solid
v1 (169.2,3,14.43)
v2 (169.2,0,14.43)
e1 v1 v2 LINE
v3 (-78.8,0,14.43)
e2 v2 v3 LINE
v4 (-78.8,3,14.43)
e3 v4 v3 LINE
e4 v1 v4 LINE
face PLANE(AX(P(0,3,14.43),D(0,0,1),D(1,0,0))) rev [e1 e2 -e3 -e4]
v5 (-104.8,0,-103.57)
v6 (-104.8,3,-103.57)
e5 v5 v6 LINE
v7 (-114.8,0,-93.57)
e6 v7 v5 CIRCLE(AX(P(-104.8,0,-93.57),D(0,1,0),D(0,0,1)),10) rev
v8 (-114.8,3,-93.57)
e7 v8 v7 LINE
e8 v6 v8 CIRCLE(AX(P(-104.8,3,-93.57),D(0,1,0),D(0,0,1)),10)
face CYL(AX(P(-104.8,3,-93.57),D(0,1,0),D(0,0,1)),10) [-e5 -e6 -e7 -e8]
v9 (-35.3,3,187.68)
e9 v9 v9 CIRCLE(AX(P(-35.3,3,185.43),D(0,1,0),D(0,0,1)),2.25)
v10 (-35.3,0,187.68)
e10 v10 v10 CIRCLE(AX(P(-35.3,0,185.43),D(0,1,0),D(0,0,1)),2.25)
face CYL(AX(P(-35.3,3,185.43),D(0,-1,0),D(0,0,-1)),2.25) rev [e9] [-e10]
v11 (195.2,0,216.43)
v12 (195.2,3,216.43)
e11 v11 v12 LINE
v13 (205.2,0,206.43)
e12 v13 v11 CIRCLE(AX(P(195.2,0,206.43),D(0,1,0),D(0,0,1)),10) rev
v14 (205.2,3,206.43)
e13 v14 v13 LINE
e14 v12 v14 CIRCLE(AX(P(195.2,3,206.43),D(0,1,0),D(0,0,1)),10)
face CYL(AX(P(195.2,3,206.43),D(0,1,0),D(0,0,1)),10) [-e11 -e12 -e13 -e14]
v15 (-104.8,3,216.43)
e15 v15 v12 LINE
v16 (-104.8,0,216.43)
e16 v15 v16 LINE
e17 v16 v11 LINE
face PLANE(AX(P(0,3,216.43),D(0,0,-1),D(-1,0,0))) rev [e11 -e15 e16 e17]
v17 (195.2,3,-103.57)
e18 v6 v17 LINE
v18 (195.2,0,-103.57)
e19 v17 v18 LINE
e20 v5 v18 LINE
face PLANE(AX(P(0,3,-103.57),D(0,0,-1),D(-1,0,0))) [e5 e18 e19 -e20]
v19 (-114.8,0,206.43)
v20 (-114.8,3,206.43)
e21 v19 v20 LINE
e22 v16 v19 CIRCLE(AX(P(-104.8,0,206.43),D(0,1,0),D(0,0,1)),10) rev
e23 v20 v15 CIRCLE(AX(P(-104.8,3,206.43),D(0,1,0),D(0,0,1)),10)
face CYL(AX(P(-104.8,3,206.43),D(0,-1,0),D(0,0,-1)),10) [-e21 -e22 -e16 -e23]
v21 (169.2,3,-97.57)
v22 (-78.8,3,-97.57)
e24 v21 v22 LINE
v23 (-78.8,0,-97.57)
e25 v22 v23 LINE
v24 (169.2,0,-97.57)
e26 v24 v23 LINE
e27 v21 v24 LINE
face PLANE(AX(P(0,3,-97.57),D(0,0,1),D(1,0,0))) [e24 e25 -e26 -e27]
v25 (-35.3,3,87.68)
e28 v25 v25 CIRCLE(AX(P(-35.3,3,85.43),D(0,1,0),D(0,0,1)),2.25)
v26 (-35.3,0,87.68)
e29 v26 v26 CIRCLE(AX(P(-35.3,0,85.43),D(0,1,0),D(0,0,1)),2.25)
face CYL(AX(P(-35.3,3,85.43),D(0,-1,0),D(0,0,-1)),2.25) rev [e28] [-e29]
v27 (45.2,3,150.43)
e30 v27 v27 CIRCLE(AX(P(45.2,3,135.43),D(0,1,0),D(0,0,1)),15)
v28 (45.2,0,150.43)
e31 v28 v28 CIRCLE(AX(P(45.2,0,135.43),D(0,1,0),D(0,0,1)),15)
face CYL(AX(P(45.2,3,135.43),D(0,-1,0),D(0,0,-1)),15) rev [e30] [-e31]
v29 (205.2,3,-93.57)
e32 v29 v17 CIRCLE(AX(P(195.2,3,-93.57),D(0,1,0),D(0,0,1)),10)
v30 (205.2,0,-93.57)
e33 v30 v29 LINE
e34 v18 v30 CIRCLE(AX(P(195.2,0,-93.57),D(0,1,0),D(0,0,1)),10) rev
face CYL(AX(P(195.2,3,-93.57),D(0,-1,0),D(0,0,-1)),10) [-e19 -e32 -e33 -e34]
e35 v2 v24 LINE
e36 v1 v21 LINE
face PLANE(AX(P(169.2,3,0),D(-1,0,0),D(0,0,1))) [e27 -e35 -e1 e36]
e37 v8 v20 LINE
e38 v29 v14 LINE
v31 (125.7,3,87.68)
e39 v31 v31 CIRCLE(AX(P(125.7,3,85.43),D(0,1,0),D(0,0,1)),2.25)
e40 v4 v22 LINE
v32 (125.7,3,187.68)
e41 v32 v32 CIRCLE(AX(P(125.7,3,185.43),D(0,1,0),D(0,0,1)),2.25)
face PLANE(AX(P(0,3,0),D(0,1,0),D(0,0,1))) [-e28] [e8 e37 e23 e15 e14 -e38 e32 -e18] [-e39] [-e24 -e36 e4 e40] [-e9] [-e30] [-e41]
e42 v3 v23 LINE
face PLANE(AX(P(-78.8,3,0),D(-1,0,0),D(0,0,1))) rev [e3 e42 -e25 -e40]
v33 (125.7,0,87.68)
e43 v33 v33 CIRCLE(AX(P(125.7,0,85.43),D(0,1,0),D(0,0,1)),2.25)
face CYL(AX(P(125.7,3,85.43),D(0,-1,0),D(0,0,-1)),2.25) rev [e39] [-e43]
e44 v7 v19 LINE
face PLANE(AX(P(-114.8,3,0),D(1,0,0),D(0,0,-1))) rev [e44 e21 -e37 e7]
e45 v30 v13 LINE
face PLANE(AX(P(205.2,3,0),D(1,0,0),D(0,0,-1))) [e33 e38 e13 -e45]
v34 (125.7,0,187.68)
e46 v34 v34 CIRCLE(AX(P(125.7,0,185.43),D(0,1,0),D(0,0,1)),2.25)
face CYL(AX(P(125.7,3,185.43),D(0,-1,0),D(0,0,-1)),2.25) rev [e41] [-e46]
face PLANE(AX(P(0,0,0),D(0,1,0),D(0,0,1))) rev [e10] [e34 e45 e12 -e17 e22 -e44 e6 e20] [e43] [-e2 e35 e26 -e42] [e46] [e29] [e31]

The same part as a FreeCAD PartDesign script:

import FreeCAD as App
import Part
import Sketcher
from FreeCAD import Vector


def edges_at(feature, points):
    """Names of the edges that pass closest to the given points."""
    edges = feature.Shape.Edges
    near = lambda p: min(range(len(edges)), key=lambda i: edges[i].distToShape(Part.Vertex(*p))[0])
    return sorted({f"Edge{near(p) + 1}" for p in points})

doc = App.newDocument("Part")
body = doc.addObject("PartDesign::Body", "Body")

# Sketch on XZ plane
sketch1 = doc.addObject("Sketcher::SketchObject", "Sketch")
body.addObject(sketch1)
sketch1.AttachmentSupport = (doc.XZ_Plane, [""])
sketch1.MapMode = "FlatFace"
sketch1.addGeometry(Part.LineSegment(Vector(-114.8, -103.57, 0), Vector(-114.8, 216.43, 0)), False)
sketch1.addGeometry(Part.LineSegment(Vector(-114.8, 216.43, 0), Vector(205.2, 216.43, 0)), False)
sketch1.addGeometry(Part.LineSegment(Vector(205.2, 216.43, 0), Vector(205.2, -103.57, 0)), False)
sketch1.addGeometry(Part.LineSegment(Vector(205.2, -103.57, 0), Vector(-114.8, -103.57, 0)), False)
sketch1.addGeometry(Part.Circle(Vector(-35.3, 185.43, 0), Vector(0, 0, 1), 2.25), False)
sketch1.addGeometry(Part.Circle(Vector(-35.3, 85.43, 0), Vector(0, 0, 1), 2.25), False)
sketch1.addGeometry(Part.Circle(Vector(45.2, 135.43, 0), Vector(0, 0, 1), 15), False)
sketch1.addGeometry(Part.Circle(Vector(125.7, 185.43, 0), Vector(0, 0, 1), 2.25), False)
sketch1.addGeometry(Part.Circle(Vector(125.7, 85.43, 0), Vector(0, 0, 1), 2.25), False)
sketch1.addGeometry(Part.LineSegment(Vector(169.2, 14.43, 0), Vector(-78.8, 14.43, 0)), False)
sketch1.addGeometry(Part.LineSegment(Vector(-78.8, 14.43, 0), Vector(-78.8, -97.57, 0)), False)
sketch1.addGeometry(Part.LineSegment(Vector(-78.8, -97.57, 0), Vector(169.2, -97.57, 0)), False)
sketch1.addGeometry(Part.LineSegment(Vector(169.2, -97.57, 0), Vector(169.2, 14.43, 0)), False)
sketch1.addConstraint(Sketcher.Constraint("Coincident", 0, 2, 1, 1))
sketch1.addConstraint(Sketcher.Constraint("Coincident", 1, 2, 2, 1))
sketch1.addConstraint(Sketcher.Constraint("Coincident", 2, 2, 3, 1))
sketch1.addConstraint(Sketcher.Constraint("Coincident", 3, 2, 0, 1))
sketch1.addConstraint(Sketcher.Constraint("Coincident", 9, 2, 10, 1))
sketch1.addConstraint(Sketcher.Constraint("Coincident", 10, 2, 11, 1))
sketch1.addConstraint(Sketcher.Constraint("Coincident", 11, 2, 12, 1))
sketch1.addConstraint(Sketcher.Constraint("Coincident", 12, 2, 9, 1))
sketch1.addConstraint(Sketcher.Constraint("Vertical", 0))
sketch1.addConstraint(Sketcher.Constraint("Horizontal", 1))
sketch1.addConstraint(Sketcher.Constraint("Vertical", 2))
sketch1.addConstraint(Sketcher.Constraint("Horizontal", 3))
sketch1.addConstraint(Sketcher.Constraint("Horizontal", 9))
sketch1.addConstraint(Sketcher.Constraint("Vertical", 10))
sketch1.addConstraint(Sketcher.Constraint("Horizontal", 11))
sketch1.addConstraint(Sketcher.Constraint("Vertical", 12))
sketch1.addConstraint(Sketcher.Constraint("Equal", 4, 5))
sketch1.addConstraint(Sketcher.Constraint("Equal", 5, 7))
sketch1.addConstraint(Sketcher.Constraint("Equal", 7, 8))
sketch1.addConstraint(Sketcher.Constraint("Horizontal", 4, 3, 7, 3))
sketch1.addConstraint(Sketcher.Constraint("Horizontal", 5, 3, 8, 3))
sketch1.addConstraint(Sketcher.Constraint("Vertical", 4, 3, 5, 3))
sketch1.addConstraint(Sketcher.Constraint("Vertical", 7, 3, 8, 3))
sketch1.addConstraint(Sketcher.Constraint("Equal", 3, 0))
sketch1.addConstraint(Sketcher.Constraint("Diameter", 6, 30.0))
sketch1.addConstraint(Sketcher.Constraint("Diameter", 4, 4.5))
sketch1.addConstraint(Sketcher.Constraint("DistanceX", 1, 1, 1, 2, 320.0))
sketch1.addConstraint(Sketcher.Constraint("DistanceX", 9, 2, 9, 1, 248.0))
sketch1.addConstraint(Sketcher.Constraint("DistanceY", 10, 2, 10, 1, 112.0))
sketch1.addConstraint(Sketcher.Constraint("DistanceY", 5, 3, 4, 3, 100.0))
sketch1.addConstraint(Sketcher.Constraint("DistanceY", 6, 3, 4, 3, 50.0))
sketch1.addConstraint(Sketcher.Constraint("DistanceX", 4, 3, 7, 3, 161.0))
sketch1.addConstraint(Sketcher.Constraint("DistanceY", 4, 3, 0, 2, 31.0))
sketch1.addConstraint(Sketcher.Constraint("DistanceX", 0, 2, 6, 3, 160.0))
sketch1.addConstraint(Sketcher.Constraint("DistanceY", 9, 2, 5, 3, 71.0))
sketch1.addConstraint(Sketcher.Constraint("DistanceX", 3, 2, 9, 2, 36.0))
sketch1.addConstraint(Sketcher.Constraint("DistanceX", 4, 3, -1, 1, 35.3))
sketch1.addConstraint(Sketcher.Constraint("DistanceX", -1, 1, 6, 3, 45.2))
sketch1.addConstraint(Sketcher.Constraint("DistanceY", -1, 1, 4, 3, 185.43))
pad1 = doc.addObject("PartDesign::Pad", "Pad")
body.addObject(pad1)
pad1.Profile = sketch1
pad1.Length = 3
pad1.Reversed = True
doc.recompute()

fillet = doc.addObject("PartDesign::Fillet", "Fillet")
body.addObject(fillet)
fillet.Base = (pad1, edges_at(pad1, [
    (205.2, 1.5, 216.43),
    (-114.8, 1.5, 216.43),
    (-114.8, 1.5, -103.57),
    (205.2, 1.5, -103.57),
]))
fillet.Radius = 10

doc.recompute()
